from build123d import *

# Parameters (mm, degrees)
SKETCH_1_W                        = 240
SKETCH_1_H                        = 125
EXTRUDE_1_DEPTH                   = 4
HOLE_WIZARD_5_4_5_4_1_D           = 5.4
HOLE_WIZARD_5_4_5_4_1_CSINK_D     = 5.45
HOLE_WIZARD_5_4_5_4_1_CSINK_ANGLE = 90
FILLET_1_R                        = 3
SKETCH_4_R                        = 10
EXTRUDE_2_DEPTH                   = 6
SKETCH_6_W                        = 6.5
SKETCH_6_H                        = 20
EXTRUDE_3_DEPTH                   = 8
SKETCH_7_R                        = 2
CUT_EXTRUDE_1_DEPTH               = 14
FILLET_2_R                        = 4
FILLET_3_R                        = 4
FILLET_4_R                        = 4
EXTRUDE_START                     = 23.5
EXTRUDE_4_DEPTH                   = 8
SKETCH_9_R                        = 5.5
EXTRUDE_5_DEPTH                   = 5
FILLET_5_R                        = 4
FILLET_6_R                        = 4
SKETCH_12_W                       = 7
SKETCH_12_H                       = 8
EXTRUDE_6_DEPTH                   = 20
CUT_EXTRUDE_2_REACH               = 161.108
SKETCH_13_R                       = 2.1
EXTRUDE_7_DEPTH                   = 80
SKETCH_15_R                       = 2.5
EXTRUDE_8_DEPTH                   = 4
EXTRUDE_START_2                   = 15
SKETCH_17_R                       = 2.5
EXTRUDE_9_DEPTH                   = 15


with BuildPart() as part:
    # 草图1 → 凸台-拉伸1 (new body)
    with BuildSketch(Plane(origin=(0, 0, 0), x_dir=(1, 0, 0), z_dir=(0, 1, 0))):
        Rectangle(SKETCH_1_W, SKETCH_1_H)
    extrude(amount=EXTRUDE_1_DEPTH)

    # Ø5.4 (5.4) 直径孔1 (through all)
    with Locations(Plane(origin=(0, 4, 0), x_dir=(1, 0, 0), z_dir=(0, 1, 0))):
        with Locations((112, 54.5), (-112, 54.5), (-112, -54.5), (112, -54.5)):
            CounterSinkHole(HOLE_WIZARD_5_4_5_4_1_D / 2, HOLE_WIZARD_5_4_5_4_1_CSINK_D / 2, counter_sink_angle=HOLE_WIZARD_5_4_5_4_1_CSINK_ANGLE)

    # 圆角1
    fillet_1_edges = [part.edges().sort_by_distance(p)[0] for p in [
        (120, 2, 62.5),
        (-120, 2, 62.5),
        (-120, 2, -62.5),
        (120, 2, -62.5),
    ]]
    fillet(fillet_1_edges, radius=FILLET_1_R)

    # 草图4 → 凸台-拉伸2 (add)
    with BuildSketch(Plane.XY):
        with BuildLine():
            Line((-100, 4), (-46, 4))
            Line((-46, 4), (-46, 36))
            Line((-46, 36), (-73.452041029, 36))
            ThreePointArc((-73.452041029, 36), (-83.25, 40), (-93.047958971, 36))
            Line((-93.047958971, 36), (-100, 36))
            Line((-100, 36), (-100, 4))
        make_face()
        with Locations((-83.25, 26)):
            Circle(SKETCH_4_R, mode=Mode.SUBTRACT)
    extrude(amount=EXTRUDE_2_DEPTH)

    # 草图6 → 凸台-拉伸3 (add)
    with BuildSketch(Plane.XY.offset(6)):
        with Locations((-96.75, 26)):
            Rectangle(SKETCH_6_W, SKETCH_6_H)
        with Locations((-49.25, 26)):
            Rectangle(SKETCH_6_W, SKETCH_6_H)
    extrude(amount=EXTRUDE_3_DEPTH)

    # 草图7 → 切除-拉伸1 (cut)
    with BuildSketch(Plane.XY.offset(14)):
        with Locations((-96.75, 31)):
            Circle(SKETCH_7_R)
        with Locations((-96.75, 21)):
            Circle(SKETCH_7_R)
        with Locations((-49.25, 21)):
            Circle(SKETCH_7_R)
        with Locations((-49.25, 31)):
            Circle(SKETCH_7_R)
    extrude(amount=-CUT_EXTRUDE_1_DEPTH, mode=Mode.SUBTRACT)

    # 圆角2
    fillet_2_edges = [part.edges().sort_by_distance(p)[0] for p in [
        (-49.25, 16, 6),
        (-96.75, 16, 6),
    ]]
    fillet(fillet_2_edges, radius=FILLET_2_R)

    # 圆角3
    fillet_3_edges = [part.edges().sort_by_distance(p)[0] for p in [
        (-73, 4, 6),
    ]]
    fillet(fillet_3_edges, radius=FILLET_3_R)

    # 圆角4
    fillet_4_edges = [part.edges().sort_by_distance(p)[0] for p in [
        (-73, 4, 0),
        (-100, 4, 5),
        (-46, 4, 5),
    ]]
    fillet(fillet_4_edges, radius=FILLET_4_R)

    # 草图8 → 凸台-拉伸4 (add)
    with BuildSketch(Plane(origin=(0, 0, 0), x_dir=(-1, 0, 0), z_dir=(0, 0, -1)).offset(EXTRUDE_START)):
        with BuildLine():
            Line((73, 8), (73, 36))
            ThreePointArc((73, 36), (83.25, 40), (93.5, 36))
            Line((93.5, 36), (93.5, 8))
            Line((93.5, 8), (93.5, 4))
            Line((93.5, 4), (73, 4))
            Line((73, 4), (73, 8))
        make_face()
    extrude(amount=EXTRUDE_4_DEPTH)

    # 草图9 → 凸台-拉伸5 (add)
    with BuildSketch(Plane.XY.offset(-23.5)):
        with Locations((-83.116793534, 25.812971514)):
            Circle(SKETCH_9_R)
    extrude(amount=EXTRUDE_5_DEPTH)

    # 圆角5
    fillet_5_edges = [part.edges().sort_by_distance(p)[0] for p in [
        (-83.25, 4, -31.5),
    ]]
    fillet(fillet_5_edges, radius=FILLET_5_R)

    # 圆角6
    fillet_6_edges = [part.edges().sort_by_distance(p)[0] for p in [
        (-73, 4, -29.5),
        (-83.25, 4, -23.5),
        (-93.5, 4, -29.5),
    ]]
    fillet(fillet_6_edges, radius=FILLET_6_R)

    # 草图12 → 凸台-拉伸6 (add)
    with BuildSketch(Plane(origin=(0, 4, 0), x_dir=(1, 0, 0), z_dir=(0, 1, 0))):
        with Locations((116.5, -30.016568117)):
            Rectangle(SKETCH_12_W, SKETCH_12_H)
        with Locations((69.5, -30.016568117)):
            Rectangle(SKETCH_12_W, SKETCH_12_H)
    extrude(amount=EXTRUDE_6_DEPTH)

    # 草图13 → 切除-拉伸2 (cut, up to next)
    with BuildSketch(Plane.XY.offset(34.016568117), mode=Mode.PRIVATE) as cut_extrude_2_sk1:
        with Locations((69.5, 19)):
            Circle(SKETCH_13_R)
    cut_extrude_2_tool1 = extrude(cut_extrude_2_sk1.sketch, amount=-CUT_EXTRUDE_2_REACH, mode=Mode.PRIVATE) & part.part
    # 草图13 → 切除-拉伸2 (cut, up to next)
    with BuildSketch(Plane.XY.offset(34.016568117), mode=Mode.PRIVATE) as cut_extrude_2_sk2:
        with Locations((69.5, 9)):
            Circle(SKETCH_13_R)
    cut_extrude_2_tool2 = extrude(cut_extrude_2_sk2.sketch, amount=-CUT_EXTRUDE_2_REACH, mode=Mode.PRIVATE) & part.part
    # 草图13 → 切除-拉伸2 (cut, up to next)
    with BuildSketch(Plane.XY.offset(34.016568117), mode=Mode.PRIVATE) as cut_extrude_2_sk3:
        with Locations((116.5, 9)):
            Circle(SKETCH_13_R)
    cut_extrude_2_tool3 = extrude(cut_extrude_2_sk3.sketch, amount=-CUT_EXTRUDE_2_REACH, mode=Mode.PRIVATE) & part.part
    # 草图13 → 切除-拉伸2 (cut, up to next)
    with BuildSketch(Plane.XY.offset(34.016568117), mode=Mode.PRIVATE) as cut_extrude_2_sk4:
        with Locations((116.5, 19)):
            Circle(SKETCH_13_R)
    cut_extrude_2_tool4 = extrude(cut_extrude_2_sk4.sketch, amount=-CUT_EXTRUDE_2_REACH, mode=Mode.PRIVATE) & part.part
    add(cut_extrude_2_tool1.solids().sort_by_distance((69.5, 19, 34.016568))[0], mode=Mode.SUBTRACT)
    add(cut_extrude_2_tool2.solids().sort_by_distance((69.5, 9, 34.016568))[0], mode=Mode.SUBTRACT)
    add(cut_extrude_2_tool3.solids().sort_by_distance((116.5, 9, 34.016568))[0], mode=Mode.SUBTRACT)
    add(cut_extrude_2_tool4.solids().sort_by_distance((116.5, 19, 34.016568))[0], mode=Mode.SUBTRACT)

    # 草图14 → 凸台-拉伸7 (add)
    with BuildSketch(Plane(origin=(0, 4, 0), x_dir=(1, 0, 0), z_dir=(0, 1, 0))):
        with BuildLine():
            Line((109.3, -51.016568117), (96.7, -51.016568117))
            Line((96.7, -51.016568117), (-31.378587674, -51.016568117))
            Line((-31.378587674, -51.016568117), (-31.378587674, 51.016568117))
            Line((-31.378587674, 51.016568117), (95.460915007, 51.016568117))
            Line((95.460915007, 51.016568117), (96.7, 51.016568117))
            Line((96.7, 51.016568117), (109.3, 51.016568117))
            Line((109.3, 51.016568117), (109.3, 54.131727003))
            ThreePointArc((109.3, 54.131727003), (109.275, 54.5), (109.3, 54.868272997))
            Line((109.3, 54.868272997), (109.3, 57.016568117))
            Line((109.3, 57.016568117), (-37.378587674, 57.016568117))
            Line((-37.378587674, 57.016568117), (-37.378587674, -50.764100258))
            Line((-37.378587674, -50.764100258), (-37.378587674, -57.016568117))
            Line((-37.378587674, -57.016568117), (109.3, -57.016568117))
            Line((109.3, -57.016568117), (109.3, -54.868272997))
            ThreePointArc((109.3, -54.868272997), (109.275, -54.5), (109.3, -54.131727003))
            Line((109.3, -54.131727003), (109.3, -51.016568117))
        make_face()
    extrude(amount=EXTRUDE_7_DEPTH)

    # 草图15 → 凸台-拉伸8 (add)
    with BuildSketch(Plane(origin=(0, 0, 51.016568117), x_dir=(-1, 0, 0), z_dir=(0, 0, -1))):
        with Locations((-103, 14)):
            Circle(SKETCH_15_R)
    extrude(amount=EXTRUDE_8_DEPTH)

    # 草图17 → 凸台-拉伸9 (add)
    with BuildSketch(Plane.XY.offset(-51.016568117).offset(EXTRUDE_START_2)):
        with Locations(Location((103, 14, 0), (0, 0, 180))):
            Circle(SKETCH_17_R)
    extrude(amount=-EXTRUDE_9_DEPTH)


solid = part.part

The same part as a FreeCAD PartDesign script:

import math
import FreeCAD as App
import Part
import Sketcher

V = App.Vector


def edges_at(feature, points):
    """Names of the edges that pass closest to the given points."""
    edges = feature.Shape.Edges
    near = lambda p: min(range(len(edges)), key=lambda i: edges[i].distToShape(Part.Vertex(*p))[0])
    return sorted({f"Edge{near(p) + 1}" for p in points})

doc = App.newDocument("Part")
body = doc.addObject("PartDesign::Body", "Body")

# Sketch on XZ plane
sketch1 = doc.addObject("Sketcher::SketchObject", "Sketch")
body.addObject(sketch1)
sketch1.AttachmentSupport = (doc.XZ_Plane, [""])
sketch1.MapMode = "FlatFace"
sketch1.addGeometry([
    Part.LineSegment(V(-120, -62, 0), V(-120, 62, 0)),
    Part.LineSegment(V(-120, 62, 0), V(120, 62, 0)),
    Part.LineSegment(V(120, 62, 0), V(120, -62, 0)),
    Part.LineSegment(V(120, -62, 0), V(-120, -62, 0)),
], False)
sketch1.addConstraint([
    Sketcher.Constraint("Coincident", 0, 2, 1, 1),
    Sketcher.Constraint("Coincident", 1, 2, 2, 1),
    Sketcher.Constraint("Coincident", 2, 2, 3, 1),
    Sketcher.Constraint("Coincident", 3, 2, 0, 1),
    Sketcher.Constraint("Vertical", 0),
    Sketcher.Constraint("Horizontal", 1),
    Sketcher.Constraint("Vertical", 2),
    Sketcher.Constraint("Horizontal", 3),
    Sketcher.Constraint("Symmetric", 0, 2, 2, 2, -1, 1),
    Sketcher.Constraint("DistanceX", 1, 1, 1, 2, 240.0),
    Sketcher.Constraint("DistanceY", 0, 1, 0, 2, 125.0),
])
pad1 = doc.addObject("PartDesign::Pad", "Pad")
body.addObject(pad1)
pad1.Profile = sketch1
pad1.Length = 4
pad1.Reversed = True

# Sketch on XZ plane
sketch2 = doc.addObject("Sketcher::SketchObject", "Sketch001")
body.addObject(sketch2)
sketch2.AttachmentSupport = (doc.XZ_Plane, [""])
sketch2.MapMode = "FlatFace"
sketch2.AttachmentOffset = App.Placement(V(0, 0, -4), App.Rotation())
sketch2.addGeometry([
    Part.Circle(V(112, -54.5, 0), V(0, 0, 1), 2.7),
    Part.Circle(V(-112, -54.5, 0), V(0, 0, 1), 2.7),
    Part.Circle(V(-112, 54.5, 0), V(0, 0, 1), 2.7),
    Part.Circle(V(112, 54.5, 0), V(0, 0, 1), 2.7),
], False)
sketch2.addConstraint([
    Sketcher.Constraint("Equal", 0, 1),
    Sketcher.Constraint("Equal", 1, 2),
    Sketcher.Constraint("Equal", 2, 3),
    Sketcher.Constraint("Symmetric", 0, 3, 2, 3, -1, 1),
    Sketcher.Constraint("Symmetric", 1, 3, 3, 3, -1, 1),
    Sketcher.Constraint("Symmetric", 0, 3, 1, 3, -2),
    Sketcher.Constraint("Diameter", 0, 5.4),
    Sketcher.Constraint("DistanceX", -1, 1, 0, 3, 112.0),
    Sketcher.Constraint("DistanceY", 1, 3, 2, 3, 109.0),
])
doc.recompute()
hole = doc.addObject("PartDesign::Hole", "Hole")
body.addObject(hole)
hole.Profile = sketch2
hole.ThreadType = "None"
hole.Diameter = 5.4
hole.DepthType = "ThroughAll"
hole.HoleCutType = "Countersink"
hole.HoleCutDiameter = 5.45
hole.HoleCutCountersinkAngle = 90
hole.Reversed = True
doc.recompute()

fillet = doc.addObject("PartDesign::Fillet", "Fillet")
body.addObject(fillet)
fillet.Base = (hole, edges_at(hole, [
    (120, 2, 62.5),
    (-120, 2, 62.5),
    (-120, 2, -62.5),
    (120, 2, -62.5),
]))
fillet.Radius = 3

# Sketch on XY plane
sketch3 = doc.addObject("Sketcher::SketchObject", "Sketch002")
body.addObject(sketch3)
sketch3.AttachmentSupport = (doc.XY_Plane, [""])
sketch3.MapMode = "FlatFace"
sketch3.addGeometry([
    Part.LineSegment(V(-100, 4, 0), V(-46, 4, 0)),  # 0
    Part.LineSegment(V(-46, 4, 0), V(-46, 36, 0)),  # 1
    Part.LineSegment(V(-46, 36, 0), V(-73, 36, 0)),  # 2
    Part.ArcOfCircle(Part.Circle(V(-83, 26, 0), V(0, 0, 1), 14), math.radians(46), math.radians(134)),  # 3
    Part.LineSegment(V(-93, 36, 0), V(-100, 36, 0)),  # 4
    Part.LineSegment(V(-100, 36, 0), V(-100, 4, 0)),  # 5
    Part.Circle(V(-83, 26, 0), V(0, 0, 1), 10),  # 6
], False)
sketch3.addConstraint([
    Sketcher.Constraint("Coincident", 0, 2, 1, 1),
    Sketcher.Constraint("Coincident", 1, 2, 2, 1),
    Sketcher.Constraint("Coincident", 2, 2, 3, 1),
    Sketcher.Constraint("Coincident", 3, 2, 4, 1),
    Sketcher.Constraint("Coincident", 4, 2, 5, 1),
    Sketcher.Constraint("Coincident", 5, 2, 0, 1),
    Sketcher.Constraint("Horizontal", 0),
    Sketcher.Constraint("Vertical", 1),
    Sketcher.Constraint("Horizontal", 2),
    Sketcher.Constraint("Horizontal", 4),
    Sketcher.Constraint("Vertical", 5),
    Sketcher.Constraint("Coincident", 6, 3, 3, 3),
    Sketcher.Constraint("Horizontal", 2, 2, 3, 2),
    Sketcher.Constraint("Diameter", 6, 20.0),
    Sketcher.Constraint("Radius", 3, 14.0),
    Sketcher.Constraint("DistanceX", 0, 1, 0, 2, 54.0),
    Sketcher.Constraint("DistanceY", 1, 1, 1, 2, 32.0),
    Sketcher.Constraint("DistanceY", -1, 1, 3, 3, 26.0),
    Sketcher.Constraint("DistanceX", 0, 2, -1, 1, 46.0),
    Sketcher.Constraint("DistanceY", -1, 1, 0, 2, 4.0),
    Sketcher.Constraint("DistanceX", 3, 3, -1, 1, 83.25),
])
pad2 = doc.addObject("PartDesign::Pad", "Pad001")
body.addObject(pad2)
pad2.Profile = sketch3
pad2.Length = 6

# Sketch on XY plane
sketch4 = doc.addObject("Sketcher::SketchObject", "Sketch003")
body.addObject(sketch4)
sketch4.AttachmentSupport = (doc.XY_Plane, [""])
sketch4.MapMode = "FlatFace"
sketch4.AttachmentOffset = App.Placement(V(0, 0, 6), App.Rotation())
sketch4.addGeometry([
    Part.LineSegment(V(-100, 36, 0), V(-100, 16, 0)),  # 0
    Part.LineSegment(V(-100, 16, 0), V(-94, 16, 0)),  # 1
    Part.LineSegment(V(-94, 16, 0), V(-94, 36, 0)),  # 2
    Part.LineSegment(V(-94, 36, 0), V(-100, 36, 0)),  # 3
    Part.LineSegment(V(-52, 36, 0), V(-52, 16, 0)),  # 4
    Part.LineSegment(V(-52, 16, 0), V(-46, 16, 0)),  # 5
    Part.LineSegment(V(-46, 16, 0), V(-46, 36, 0)),  # 6
    Part.LineSegment(V(-46, 36, 0), V(-52, 36, 0)),  # 7
], False)
sketch4.addConstraint([
    Sketcher.Constraint("Coincident", 0, 2, 1, 1),
    Sketcher.Constraint("Coincident", 1, 2, 2, 1),
    Sketcher.Constraint("Coincident", 2, 2, 3, 1),
    Sketcher.Constraint("Coincident", 3, 2, 0, 1),
    Sketcher.Constraint("Coincident", 4, 2, 5, 1),
    Sketcher.Constraint("Coincident", 5, 2, 6, 1),
    Sketcher.Constraint("Coincident", 6, 2, 7, 1),
    Sketcher.Constraint("Coincident", 7, 2, 4, 1),
    Sketcher.Constraint("Vertical", 0),
    Sketcher.Constraint("Horizontal", 1),
    Sketcher.Constraint("Vertical", 2),
    Sketcher.Constraint("Horizontal", 3),
    Sketcher.Constraint("Vertical", 4),
    Sketcher.Constraint("Horizontal", 5),
    Sketcher.Constraint("Vertical", 6),
    Sketcher.Constraint("Horizontal", 7),
    Sketcher.Constraint("Horizontal", 1, 2, 4, 2),
    Sketcher.Constraint("Horizontal", 3, 2, 6, 2),
    Sketcher.Constraint("Equal", 3, 5),
    Sketcher.Constraint("DistanceY", 0, 2, 0, 1, 20.0),
    Sketcher.Constraint("DistanceX", 1, 1, 1, 2, 6.5),
    Sketcher.Constraint("DistanceX", 0, 2, -1, 1, 100.0),
    Sketcher.Constraint("DistanceY", -1, 1, 0, 2, 16.0),
    Sketcher.Constraint("DistanceX", 5, 2, -1, 1, 46.0),
])
pad3 = doc.addObject("PartDesign::Pad", "Pad002")
body.addObject(pad3)
pad3.Profile = sketch4
pad3.Length = 8

# Sketch on XY plane
sketch5 = doc.addObject("Sketcher::SketchObject", "Sketch004")
body.addObject(sketch5)
sketch5.AttachmentSupport = (doc.XY_Plane, [""])
sketch5.MapMode = "FlatFace"
sketch5.AttachmentOffset = App.Placement(V(0, 0, 14), App.Rotation())
sketch5.addGeometry([
    Part.Circle(V(-96.8, 31, 0), V(0, 0, 1), 2),
    Part.Circle(V(-96.8, 21, 0), V(0, 0, 1), 2),
    Part.Circle(V(-49.2, 21, 0), V(0, 0, 1), 2),
    Part.Circle(V(-49.2, 31, 0), V(0, 0, 1), 2),
], False)
sketch5.addConstraint([
    Sketcher.Constraint("Equal", 0, 1),
    Sketcher.Constraint("Equal", 1, 2),
    Sketcher.Constraint("Equal", 2, 3),
    Sketcher.Constraint("Horizontal", 1, 3, 2, 3),
    Sketcher.Constraint("Horizontal", 0, 3, 3, 3),
    Sketcher.Constraint("Vertical", 0, 3, 1, 3),
    Sketcher.Constraint("Vertical", 2, 3, 3, 3),
    Sketcher.Constraint("Diameter", 0, 4.0),
    Sketcher.Constraint("DistanceY", -1, 1, 0, 3, 31.0),
    Sketcher.Constraint("DistanceY", -1, 1, 1, 3, 21.0),
    Sketcher.Constraint("DistanceX", 1, 3, 2, 3, 47.5),
    Sketcher.Constraint("DistanceX", 0, 3, -1, 1, 96.75),
])
pocket1 = doc.addObject("PartDesign::Pocket", "Pocket")
body.addObject(pocket1)
pocket1.Profile = sketch5
pocket1.Length = 14
doc.recompute()

fillet2 = doc.addObject("PartDesign::Fillet", "Fillet001")
body.addObject(fillet2)
fillet2.Base = (pocket1, edges_at(pocket1, [(-49.25, 16, 6), (-96.75, 16, 6)]))
fillet2.Radius = 4
doc.recompute()

fillet3 = doc.addObject("PartDesign::Fillet", "Fillet002")
body.addObject(fillet3)
fillet3.Base = (fillet2, edges_at(fillet2, [(-73, 4, 6)]))
fillet3.Radius = 4
doc.recompute()

fillet4 = doc.addObject("PartDesign::Fillet", "Fillet003")
body.addObject(fillet4)
fillet4.Base = (fillet3, edges_at(fillet3, [(-73, 4, 0), (-100, 4, 5), (-46, 4, 5)]))
fillet4.Radius = 4

# Sketch on XY plane
sketch6 = doc.addObject("Sketcher::SketchObject", "Sketch005")
body.addObject(sketch6)
sketch6.AttachmentSupport = (doc.XY_Plane, [""])
sketch6.MapMode = "FlatFace"
sketch6.AttachmentOffset = App.Placement(V(0, 0, -23.5), App.Rotation())
sketch6.addGeometry([
    Part.ArcOfCircle(Part.Circle(V(-83, 25, 0), V(0, 0, 1), 15), math.radians(47), math.radians(133)),
    Part.LineSegment(V(-73, 36, 0), V(-73, 4, 0)),
    Part.LineSegment(V(-73, 4, 0), V(-94, 4, 0)),
    Part.LineSegment(V(-94, 4, 0), V(-94, 36, 0)),
], False)
sketch6.addConstraint([
    Sketcher.Constraint("Coincident", 0, 1, 1, 1),
    Sketcher.Constraint("Coincident", 1, 2, 2, 1),
    Sketcher.Constraint("Coincident", 2, 2, 3, 1),
    Sketcher.Constraint("Coincident", 3, 2, 0, 2),
    Sketcher.Constraint("Vertical", 1),
    Sketcher.Constraint("Horizontal", 2),
    Sketcher.Constraint("Vertical", 3),
    Sketcher.Constraint("Horizontal", 0, 1, 3, 2),
    Sketcher.Constraint("DistanceY", 1, 2, 1, 1, 32.0),
    Sketcher.Constraint("DistanceX", 2, 2, 2, 1, 20.5),
    Sketcher.Constraint("DistanceX", 0, 1, -1, 1, 73.0),
    Sketcher.Constraint("DistanceY", -1, 1, 0, 1, 36.0),
    Sketcher.Constraint("Radius", 0, 15.132812),
])
pad4 = doc.addObject("PartDesign::Pad", "Pad003")
body.addObject(pad4)
pad4.Profile = sketch6
pad4.Length = 8
pad4.Reversed = True

# Sketch on XY plane
sketch7 = doc.addObject("Sketcher::SketchObject", "Sketch006")
body.addObject(sketch7)
sketch7.AttachmentSupport = (doc.XY_Plane, [""])
sketch7.MapMode = "FlatFace"
sketch7.AttachmentOffset = App.Placement(V(0, 0, -23.5), App.Rotation())
sketch7.addGeometry(Part.Circle(V(-83, 26, 0), V(0, 0, 1), 6), False)
sketch7.addConstraint([
    Sketcher.Constraint("Diameter", 0, 11.0),
    Sketcher.Constraint("DistanceY", -1, 1, 0, 3, 25.812972),
    Sketcher.Constraint("DistanceX", 0, 3, -1, 1, 83.116794),
])
pad5 = doc.addObject("PartDesign::Pad", "Pad004")
body.addObject(pad5)
pad5.Profile = sketch7
pad5.Length = 5
doc.recompute()

fillet5 = doc.addObject("PartDesign::Fillet", "Fillet004")
body.addObject(fillet5)
fillet5.Base = (pad5, edges_at(pad5, [(-83.25, 4, -31.5)]))
fillet5.Radius = 4
doc.recompute()

fillet6 = doc.addObject("PartDesign::Fillet", "Fillet005")
body.addObject(fillet6)
fillet6.Base = (fillet5, edges_at(fillet5, [(-73, 4, -29.5), (-83.25, 4, -23.5), (-93.5, 4, -29.5)]))
fillet6.Radius = 4

# Sketch on XZ plane
sketch8 = doc.addObject("Sketcher::SketchObject", "Sketch007")
body.addObject(sketch8)
sketch8.AttachmentSupport = (doc.XZ_Plane, [""])
sketch8.MapMode = "FlatFace"
sketch8.AttachmentOffset = App.Placement(V(0, 0, -4), App.Rotation())
sketch8.addGeometry([
    Part.LineSegment(V(113, 26, 0), V(113, 34, 0)),  # 0
    Part.LineSegment(V(113, 34, 0), V(120, 34, 0)),  # 1
    Part.LineSegment(V(120, 34, 0), V(120, 26, 0)),  # 2
    Part.LineSegment(V(120, 26, 0), V(113, 26, 0)),  # 3
    Part.LineSegment(V(66, 26, 0), V(66, 34, 0)),  # 4
    Part.LineSegment(V(66, 34, 0), V(73, 34, 0)),  # 5
    Part.LineSegment(V(73, 34, 0), V(73, 26, 0)),  # 6
    Part.LineSegment(V(73, 26, 0), V(66, 26, 0)),  # 7
], False)
sketch8.addConstraint([
    Sketcher.Constraint("Coincident", 0, 2, 1, 1),
    Sketcher.Constraint("Coincident", 1, 2, 2, 1),
    Sketcher.Constraint("Coincident", 2, 2, 3, 1),
    Sketcher.Constraint("Coincident", 3, 2, 0, 1),
    Sketcher.Constraint("Coincident", 4, 2, 5, 1),
    Sketcher.Constraint("Coincident", 5, 2, 6, 1),
    Sketcher.Constraint("Coincident", 6, 2, 7, 1),
    Sketcher.Constraint("Coincident", 7, 2, 4, 1),
    Sketcher.Constraint("Vertical", 0),
    Sketcher.Constraint("Horizontal", 1),
    Sketcher.Constraint("Vertical", 2),
    Sketcher.Constraint("Horizontal", 3),
    Sketcher.Constraint("Vertical", 4),
    Sketcher.Constraint("Horizontal", 5),
    Sketcher.Constraint("Vertical", 6),
    Sketcher.Constraint("Horizontal", 7),
    Sketcher.Constraint("Horizontal", 1, 2, 4, 2),
    Sketcher.Constraint("Horizontal", 3, 2, 6, 2),
    Sketcher.Constraint("Equal", 3, 5),
    Sketcher.Constraint("DistanceX", 1, 1, 1, 2, 7.0),
    Sketcher.Constraint("DistanceY", 0, 1, 0, 2, 8.0),
    Sketcher.Constraint("DistanceX", -1, 1, 0, 2, 113.0),
    Sketcher.Constraint("DistanceX", -1, 1, 4, 2, 66.0),
    Sketcher.Constraint("DistanceY", -1, 1, 0, 2, 34.016568),
])
pad6 = doc.addObject("PartDesign::Pad", "Pad005")
body.addObject(pad6)
pad6.Profile = sketch8
pad6.Length = 20
pad6.Reversed = True

# Sketch on XY plane
sketch9 = doc.addObject("Sketcher::SketchObject", "Sketch008")
body.addObject(sketch9)
sketch9.AttachmentSupport = (doc.XY_Plane, [""])
sketch9.MapMode = "FlatFace"
sketch9.AttachmentOffset = App.Placement(V(0, 0, 34.016568), App.Rotation())
sketch9.addGeometry(Part.Circle(V(69.5, 19, 0), V(0, 0, 1), 2.1), False)
sketch9.addConstraint([
    Sketcher.Constraint("Diameter", 0, 4.2),
    Sketcher.Constraint("DistanceY", -1, 1, 0, 3, 19.0),
    Sketcher.Constraint("DistanceX", -1, 1, 0, 3, 69.5),
])
pocket2 = doc.addObject("PartDesign::Pocket", "Pocket001")
body.addObject(pocket2)
pocket2.Profile = sketch9
pocket2.Type = "UpToFirst"

# Sketch on XY plane
sketch10 = doc.addObject("Sketcher::SketchObject", "Sketch009")
body.addObject(sketch10)
sketch10.AttachmentSupport = (doc.XY_Plane, [""])
sketch10.MapMode = "FlatFace"
sketch10.AttachmentOffset = App.Placement(V(0, 0, 34.016568), App.Rotation())
sketch10.addGeometry(Part.Circle(V(69.5, 9, 0), V(0, 0, 1), 2.1), False)
sketch10.addConstraint([
    Sketcher.Constraint("Diameter", 0, 4.2),
    Sketcher.Constraint("DistanceY", -1, 1, 0, 3, 9.0),
    Sketcher.Constraint("DistanceX", -1, 1, 0, 3, 69.5),
])
pocket3 = doc.addObject("PartDesign::Pocket", "Pocket002")
body.addObject(pocket3)
pocket3.Profile = sketch10
pocket3.Type = "UpToFirst"

# Sketch on XY plane
sketch11 = doc.addObject("Sketcher::SketchObject", "Sketch010")
body.addObject(sketch11)
sketch11.AttachmentSupport = (doc.XY_Plane, [""])
sketch11.MapMode = "FlatFace"
sketch11.AttachmentOffset = App.Placement(V(0, 0, 34.016568), App.Rotation())
sketch11.addGeometry(Part.Circle(V(116.5, 9, 0), V(0, 0, 1), 2.1), False)
sketch11.addConstraint([
    Sketcher.Constraint("Diameter", 0, 4.2),
    Sketcher.Constraint("DistanceY", -1, 1, 0, 3, 9.0),
    Sketcher.Constraint("DistanceX", -1, 1, 0, 3, 116.5),
])
pocket4 = doc.addObject("PartDesign::Pocket", "Pocket003")
body.addObject(pocket4)
pocket4.Profile = sketch11
pocket4.Type = "UpToFirst"

# Sketch on XY plane
sketch12 = doc.addObject("Sketcher::SketchObject", "Sketch011")
body.addObject(sketch12)
sketch12.AttachmentSupport = (doc.XY_Plane, [""])
sketch12.MapMode = "FlatFace"
sketch12.AttachmentOffset = App.Placement(V(0, 0, 34.016568), App.Rotation())
sketch12.addGeometry(Part.Circle(V(116.5, 19, 0), V(0, 0, 1), 2.1), False)
sketch12.addConstraint([
    Sketcher.Constraint("Diameter", 0, 4.2),
    Sketcher.Constraint("DistanceY", -1, 1, 0, 3, 19.0),
    Sketcher.Constraint("DistanceX", -1, 1, 0, 3, 116.5),
])
pocket5 = doc.addObject("PartDesign::Pocket", "Pocket004")
body.addObject(pocket5)
pocket5.Profile = sketch12
pocket5.Type = "UpToFirst"

# Sketch on XZ plane
sketch13 = doc.addObject("Sketcher::SketchObject", "Sketch012")
body.addObject(sketch13)
sketch13.AttachmentSupport = (doc.XZ_Plane, [""])
sketch13.MapMode = "FlatFace"
sketch13.AttachmentOffset = App.Placement(V(0, 0, -4), App.Rotation())
sketch13.addGeometry([
    Part.LineSegment(V(109.3, 51, 0), V(-31.4, 51, 0)),  # 0
    Part.LineSegment(V(-31.4, 51, 0), V(-31.4, -51, 0)),  # 1
    Part.LineSegment(V(-31.4, -51, 0), V(109.3, -51, 0)),  # 2
    Part.LineSegment(V(109.3, -51, 0), V(109.3, -54.1, 0)),  # 3
    Part.ArcOfCircle(Part.Circle(V(112, -54.5, 0), V(0, 0, 1), 2.7), math.radians(172.23), math.radians(187.77)),  # 4
    Part.LineSegment(V(109.3, -54.9, 0), V(109.3, -57, 0)),  # 5
    Part.LineSegment(V(109.3, -57, 0), V(-37.4, -57, 0)),  # 6
    Part.LineSegment(V(-37.4, -57, 0), V(-37.4, 57, 0)),  # 7
    Part.LineSegment(V(-37.4, 57, 0), V(109.3, 57, 0)),  # 8
    Part.LineSegment(V(109.3, 57, 0), V(109.3, 54.9, 0)),  # 9
    Part.ArcOfCircle(Part.Circle(V(112, 54.5, 0), V(0, 0, 1), 2.7), math.radians(172.23), math.radians(187.77)),  # 10
    Part.LineSegment(V(109.3, 54.1, 0), V(109.3, 51, 0)),  # 11
], False)
sketch13.addConstraint([
    Sketcher.Constraint("Coincident", 0, 2, 1, 1),
    Sketcher.Constraint("Coincident", 1, 2, 2, 1),
    Sketcher.Constraint("Coincident", 2, 2, 3, 1),
    Sketcher.Constraint("Coincident", 3, 2, 4, 1),
    Sketcher.Constraint("Coincident", 4, 2, 5, 1),
    Sketcher.Constraint("Coincident", 5, 2, 6, 1),
    Sketcher.Constraint("Coincident", 6, 2, 7, 1),
    Sketcher.Constraint("Coincident", 7, 2, 8, 1),
    Sketcher.Constraint("Coincident", 8, 2, 9, 1),
    Sketcher.Constraint("Coincident", 9, 2, 10, 1),
    Sketcher.Constraint("Coincident", 10, 2, 11, 1),
    Sketcher.Constraint("Coincident", 11, 2, 0, 1),
    Sketcher.Constraint("Horizontal", 0),
    Sketcher.Constraint("Vertical", 1),
    Sketcher.Constraint("Horizontal", 2),
    Sketcher.Constraint("Vertical", 3),
    Sketcher.Constraint("Vertical", 5),
    Sketcher.Constraint("Horizontal", 6),
    Sketcher.Constraint("Vertical", 7),
    Sketcher.Constraint("Horizontal", 8),
    Sketcher.Constraint("Vertical", 9),
    Sketcher.Constraint("Vertical", 11),
    Sketcher.Constraint("Equal", 4, 10),
    Sketcher.Constraint("Symmetric", 4, 3, 10, 3, -1),
    Sketcher.Constraint("Symmetric", 5, 2, 8, 2, -1),
    Sketcher.Constraint("Symmetric", 2, 2, 11, 2, -1),
    Sketcher.Constraint("Vertical", 3, 2, 4, 2),
    Sketcher.Constraint("DistanceX", -1, 1, 4, 3, 112.0),
    Sketcher.Constraint("Radius", 4, 2.725),
    Sketcher.Constraint("DistanceY", 4, 3, 10, 3, 109.0),
    Sketcher.Constraint("DistanceY", 5, 2, 2, 2, 6.0),
    Sketcher.Constraint("DistanceX", 6, 2, 1, 2, 6.0),
    Sketcher.Constraint("DistanceX", -1, 1, 2, 2, 109.3),
    Sketcher.Constraint("DistanceY", 3, 2, 3, 1, 3.115159),
    Sketcher.Constraint("DistanceX", 0, 2, 0, 1, 140.678588),
])
pad7 = doc.addObject("PartDesign::Pad", "Pad006")
body.addObject(pad7)
pad7.Profile = sketch13
pad7.Length = 80
pad7.Reversed = True

# Sketch on XY plane
sketch14 = doc.addObject("Sketcher::SketchObject", "Sketch013")
body.addObject(sketch14)
sketch14.AttachmentSupport = (doc.XY_Plane, [""])
sketch14.MapMode = "FlatFace"
sketch14.AttachmentOffset = App.Placement(V(0, 0, 51.016568), App.Rotation())
sketch14.addGeometry(Part.Circle(V(103, 14, 0), V(0, 0, 1), 2.5), False)
sketch14.addConstraint([
    Sketcher.Constraint("Diameter", 0, 5.0),
    Sketcher.Constraint("DistanceX", -1, 1, 0, 3, 103.0),
    Sketcher.Constraint("DistanceY", -1, 1, 0, 3, 14.0),
])
pad8 = doc.addObject("PartDesign::Pad", "Pad007")
body.addObject(pad8)
pad8.Profile = sketch14
pad8.Length = 4
pad8.Reversed = True

# Sketch on XY plane
sketch15 = doc.addObject("Sketcher::SketchObject", "Sketch014")
body.addObject(sketch15)
sketch15.AttachmentSupport = (doc.XY_Plane, [""])
sketch15.MapMode = "FlatFace"
sketch15.AttachmentOffset = App.Placement(V(0, 0, -36.016568), App.Rotation())
sketch15.addGeometry(Part.Circle(V(103, 14, 0), V(0, 0, 1), 2.5), False)
sketch15.addConstraint([
    Sketcher.Constraint("Diameter", 0, 5.0),
    Sketcher.Constraint("DistanceX", -1, 1, 0, 3, 103.0),
    Sketcher.Constraint("DistanceY", -1, 1, 0, 3, 14.0),
])
pad9 = doc.addObject("PartDesign::Pad", "Pad008")
body.addObject(pad9)
pad9.Profile = sketch15
pad9.Length = 15
pad9.Reversed = True

doc.recompute()
